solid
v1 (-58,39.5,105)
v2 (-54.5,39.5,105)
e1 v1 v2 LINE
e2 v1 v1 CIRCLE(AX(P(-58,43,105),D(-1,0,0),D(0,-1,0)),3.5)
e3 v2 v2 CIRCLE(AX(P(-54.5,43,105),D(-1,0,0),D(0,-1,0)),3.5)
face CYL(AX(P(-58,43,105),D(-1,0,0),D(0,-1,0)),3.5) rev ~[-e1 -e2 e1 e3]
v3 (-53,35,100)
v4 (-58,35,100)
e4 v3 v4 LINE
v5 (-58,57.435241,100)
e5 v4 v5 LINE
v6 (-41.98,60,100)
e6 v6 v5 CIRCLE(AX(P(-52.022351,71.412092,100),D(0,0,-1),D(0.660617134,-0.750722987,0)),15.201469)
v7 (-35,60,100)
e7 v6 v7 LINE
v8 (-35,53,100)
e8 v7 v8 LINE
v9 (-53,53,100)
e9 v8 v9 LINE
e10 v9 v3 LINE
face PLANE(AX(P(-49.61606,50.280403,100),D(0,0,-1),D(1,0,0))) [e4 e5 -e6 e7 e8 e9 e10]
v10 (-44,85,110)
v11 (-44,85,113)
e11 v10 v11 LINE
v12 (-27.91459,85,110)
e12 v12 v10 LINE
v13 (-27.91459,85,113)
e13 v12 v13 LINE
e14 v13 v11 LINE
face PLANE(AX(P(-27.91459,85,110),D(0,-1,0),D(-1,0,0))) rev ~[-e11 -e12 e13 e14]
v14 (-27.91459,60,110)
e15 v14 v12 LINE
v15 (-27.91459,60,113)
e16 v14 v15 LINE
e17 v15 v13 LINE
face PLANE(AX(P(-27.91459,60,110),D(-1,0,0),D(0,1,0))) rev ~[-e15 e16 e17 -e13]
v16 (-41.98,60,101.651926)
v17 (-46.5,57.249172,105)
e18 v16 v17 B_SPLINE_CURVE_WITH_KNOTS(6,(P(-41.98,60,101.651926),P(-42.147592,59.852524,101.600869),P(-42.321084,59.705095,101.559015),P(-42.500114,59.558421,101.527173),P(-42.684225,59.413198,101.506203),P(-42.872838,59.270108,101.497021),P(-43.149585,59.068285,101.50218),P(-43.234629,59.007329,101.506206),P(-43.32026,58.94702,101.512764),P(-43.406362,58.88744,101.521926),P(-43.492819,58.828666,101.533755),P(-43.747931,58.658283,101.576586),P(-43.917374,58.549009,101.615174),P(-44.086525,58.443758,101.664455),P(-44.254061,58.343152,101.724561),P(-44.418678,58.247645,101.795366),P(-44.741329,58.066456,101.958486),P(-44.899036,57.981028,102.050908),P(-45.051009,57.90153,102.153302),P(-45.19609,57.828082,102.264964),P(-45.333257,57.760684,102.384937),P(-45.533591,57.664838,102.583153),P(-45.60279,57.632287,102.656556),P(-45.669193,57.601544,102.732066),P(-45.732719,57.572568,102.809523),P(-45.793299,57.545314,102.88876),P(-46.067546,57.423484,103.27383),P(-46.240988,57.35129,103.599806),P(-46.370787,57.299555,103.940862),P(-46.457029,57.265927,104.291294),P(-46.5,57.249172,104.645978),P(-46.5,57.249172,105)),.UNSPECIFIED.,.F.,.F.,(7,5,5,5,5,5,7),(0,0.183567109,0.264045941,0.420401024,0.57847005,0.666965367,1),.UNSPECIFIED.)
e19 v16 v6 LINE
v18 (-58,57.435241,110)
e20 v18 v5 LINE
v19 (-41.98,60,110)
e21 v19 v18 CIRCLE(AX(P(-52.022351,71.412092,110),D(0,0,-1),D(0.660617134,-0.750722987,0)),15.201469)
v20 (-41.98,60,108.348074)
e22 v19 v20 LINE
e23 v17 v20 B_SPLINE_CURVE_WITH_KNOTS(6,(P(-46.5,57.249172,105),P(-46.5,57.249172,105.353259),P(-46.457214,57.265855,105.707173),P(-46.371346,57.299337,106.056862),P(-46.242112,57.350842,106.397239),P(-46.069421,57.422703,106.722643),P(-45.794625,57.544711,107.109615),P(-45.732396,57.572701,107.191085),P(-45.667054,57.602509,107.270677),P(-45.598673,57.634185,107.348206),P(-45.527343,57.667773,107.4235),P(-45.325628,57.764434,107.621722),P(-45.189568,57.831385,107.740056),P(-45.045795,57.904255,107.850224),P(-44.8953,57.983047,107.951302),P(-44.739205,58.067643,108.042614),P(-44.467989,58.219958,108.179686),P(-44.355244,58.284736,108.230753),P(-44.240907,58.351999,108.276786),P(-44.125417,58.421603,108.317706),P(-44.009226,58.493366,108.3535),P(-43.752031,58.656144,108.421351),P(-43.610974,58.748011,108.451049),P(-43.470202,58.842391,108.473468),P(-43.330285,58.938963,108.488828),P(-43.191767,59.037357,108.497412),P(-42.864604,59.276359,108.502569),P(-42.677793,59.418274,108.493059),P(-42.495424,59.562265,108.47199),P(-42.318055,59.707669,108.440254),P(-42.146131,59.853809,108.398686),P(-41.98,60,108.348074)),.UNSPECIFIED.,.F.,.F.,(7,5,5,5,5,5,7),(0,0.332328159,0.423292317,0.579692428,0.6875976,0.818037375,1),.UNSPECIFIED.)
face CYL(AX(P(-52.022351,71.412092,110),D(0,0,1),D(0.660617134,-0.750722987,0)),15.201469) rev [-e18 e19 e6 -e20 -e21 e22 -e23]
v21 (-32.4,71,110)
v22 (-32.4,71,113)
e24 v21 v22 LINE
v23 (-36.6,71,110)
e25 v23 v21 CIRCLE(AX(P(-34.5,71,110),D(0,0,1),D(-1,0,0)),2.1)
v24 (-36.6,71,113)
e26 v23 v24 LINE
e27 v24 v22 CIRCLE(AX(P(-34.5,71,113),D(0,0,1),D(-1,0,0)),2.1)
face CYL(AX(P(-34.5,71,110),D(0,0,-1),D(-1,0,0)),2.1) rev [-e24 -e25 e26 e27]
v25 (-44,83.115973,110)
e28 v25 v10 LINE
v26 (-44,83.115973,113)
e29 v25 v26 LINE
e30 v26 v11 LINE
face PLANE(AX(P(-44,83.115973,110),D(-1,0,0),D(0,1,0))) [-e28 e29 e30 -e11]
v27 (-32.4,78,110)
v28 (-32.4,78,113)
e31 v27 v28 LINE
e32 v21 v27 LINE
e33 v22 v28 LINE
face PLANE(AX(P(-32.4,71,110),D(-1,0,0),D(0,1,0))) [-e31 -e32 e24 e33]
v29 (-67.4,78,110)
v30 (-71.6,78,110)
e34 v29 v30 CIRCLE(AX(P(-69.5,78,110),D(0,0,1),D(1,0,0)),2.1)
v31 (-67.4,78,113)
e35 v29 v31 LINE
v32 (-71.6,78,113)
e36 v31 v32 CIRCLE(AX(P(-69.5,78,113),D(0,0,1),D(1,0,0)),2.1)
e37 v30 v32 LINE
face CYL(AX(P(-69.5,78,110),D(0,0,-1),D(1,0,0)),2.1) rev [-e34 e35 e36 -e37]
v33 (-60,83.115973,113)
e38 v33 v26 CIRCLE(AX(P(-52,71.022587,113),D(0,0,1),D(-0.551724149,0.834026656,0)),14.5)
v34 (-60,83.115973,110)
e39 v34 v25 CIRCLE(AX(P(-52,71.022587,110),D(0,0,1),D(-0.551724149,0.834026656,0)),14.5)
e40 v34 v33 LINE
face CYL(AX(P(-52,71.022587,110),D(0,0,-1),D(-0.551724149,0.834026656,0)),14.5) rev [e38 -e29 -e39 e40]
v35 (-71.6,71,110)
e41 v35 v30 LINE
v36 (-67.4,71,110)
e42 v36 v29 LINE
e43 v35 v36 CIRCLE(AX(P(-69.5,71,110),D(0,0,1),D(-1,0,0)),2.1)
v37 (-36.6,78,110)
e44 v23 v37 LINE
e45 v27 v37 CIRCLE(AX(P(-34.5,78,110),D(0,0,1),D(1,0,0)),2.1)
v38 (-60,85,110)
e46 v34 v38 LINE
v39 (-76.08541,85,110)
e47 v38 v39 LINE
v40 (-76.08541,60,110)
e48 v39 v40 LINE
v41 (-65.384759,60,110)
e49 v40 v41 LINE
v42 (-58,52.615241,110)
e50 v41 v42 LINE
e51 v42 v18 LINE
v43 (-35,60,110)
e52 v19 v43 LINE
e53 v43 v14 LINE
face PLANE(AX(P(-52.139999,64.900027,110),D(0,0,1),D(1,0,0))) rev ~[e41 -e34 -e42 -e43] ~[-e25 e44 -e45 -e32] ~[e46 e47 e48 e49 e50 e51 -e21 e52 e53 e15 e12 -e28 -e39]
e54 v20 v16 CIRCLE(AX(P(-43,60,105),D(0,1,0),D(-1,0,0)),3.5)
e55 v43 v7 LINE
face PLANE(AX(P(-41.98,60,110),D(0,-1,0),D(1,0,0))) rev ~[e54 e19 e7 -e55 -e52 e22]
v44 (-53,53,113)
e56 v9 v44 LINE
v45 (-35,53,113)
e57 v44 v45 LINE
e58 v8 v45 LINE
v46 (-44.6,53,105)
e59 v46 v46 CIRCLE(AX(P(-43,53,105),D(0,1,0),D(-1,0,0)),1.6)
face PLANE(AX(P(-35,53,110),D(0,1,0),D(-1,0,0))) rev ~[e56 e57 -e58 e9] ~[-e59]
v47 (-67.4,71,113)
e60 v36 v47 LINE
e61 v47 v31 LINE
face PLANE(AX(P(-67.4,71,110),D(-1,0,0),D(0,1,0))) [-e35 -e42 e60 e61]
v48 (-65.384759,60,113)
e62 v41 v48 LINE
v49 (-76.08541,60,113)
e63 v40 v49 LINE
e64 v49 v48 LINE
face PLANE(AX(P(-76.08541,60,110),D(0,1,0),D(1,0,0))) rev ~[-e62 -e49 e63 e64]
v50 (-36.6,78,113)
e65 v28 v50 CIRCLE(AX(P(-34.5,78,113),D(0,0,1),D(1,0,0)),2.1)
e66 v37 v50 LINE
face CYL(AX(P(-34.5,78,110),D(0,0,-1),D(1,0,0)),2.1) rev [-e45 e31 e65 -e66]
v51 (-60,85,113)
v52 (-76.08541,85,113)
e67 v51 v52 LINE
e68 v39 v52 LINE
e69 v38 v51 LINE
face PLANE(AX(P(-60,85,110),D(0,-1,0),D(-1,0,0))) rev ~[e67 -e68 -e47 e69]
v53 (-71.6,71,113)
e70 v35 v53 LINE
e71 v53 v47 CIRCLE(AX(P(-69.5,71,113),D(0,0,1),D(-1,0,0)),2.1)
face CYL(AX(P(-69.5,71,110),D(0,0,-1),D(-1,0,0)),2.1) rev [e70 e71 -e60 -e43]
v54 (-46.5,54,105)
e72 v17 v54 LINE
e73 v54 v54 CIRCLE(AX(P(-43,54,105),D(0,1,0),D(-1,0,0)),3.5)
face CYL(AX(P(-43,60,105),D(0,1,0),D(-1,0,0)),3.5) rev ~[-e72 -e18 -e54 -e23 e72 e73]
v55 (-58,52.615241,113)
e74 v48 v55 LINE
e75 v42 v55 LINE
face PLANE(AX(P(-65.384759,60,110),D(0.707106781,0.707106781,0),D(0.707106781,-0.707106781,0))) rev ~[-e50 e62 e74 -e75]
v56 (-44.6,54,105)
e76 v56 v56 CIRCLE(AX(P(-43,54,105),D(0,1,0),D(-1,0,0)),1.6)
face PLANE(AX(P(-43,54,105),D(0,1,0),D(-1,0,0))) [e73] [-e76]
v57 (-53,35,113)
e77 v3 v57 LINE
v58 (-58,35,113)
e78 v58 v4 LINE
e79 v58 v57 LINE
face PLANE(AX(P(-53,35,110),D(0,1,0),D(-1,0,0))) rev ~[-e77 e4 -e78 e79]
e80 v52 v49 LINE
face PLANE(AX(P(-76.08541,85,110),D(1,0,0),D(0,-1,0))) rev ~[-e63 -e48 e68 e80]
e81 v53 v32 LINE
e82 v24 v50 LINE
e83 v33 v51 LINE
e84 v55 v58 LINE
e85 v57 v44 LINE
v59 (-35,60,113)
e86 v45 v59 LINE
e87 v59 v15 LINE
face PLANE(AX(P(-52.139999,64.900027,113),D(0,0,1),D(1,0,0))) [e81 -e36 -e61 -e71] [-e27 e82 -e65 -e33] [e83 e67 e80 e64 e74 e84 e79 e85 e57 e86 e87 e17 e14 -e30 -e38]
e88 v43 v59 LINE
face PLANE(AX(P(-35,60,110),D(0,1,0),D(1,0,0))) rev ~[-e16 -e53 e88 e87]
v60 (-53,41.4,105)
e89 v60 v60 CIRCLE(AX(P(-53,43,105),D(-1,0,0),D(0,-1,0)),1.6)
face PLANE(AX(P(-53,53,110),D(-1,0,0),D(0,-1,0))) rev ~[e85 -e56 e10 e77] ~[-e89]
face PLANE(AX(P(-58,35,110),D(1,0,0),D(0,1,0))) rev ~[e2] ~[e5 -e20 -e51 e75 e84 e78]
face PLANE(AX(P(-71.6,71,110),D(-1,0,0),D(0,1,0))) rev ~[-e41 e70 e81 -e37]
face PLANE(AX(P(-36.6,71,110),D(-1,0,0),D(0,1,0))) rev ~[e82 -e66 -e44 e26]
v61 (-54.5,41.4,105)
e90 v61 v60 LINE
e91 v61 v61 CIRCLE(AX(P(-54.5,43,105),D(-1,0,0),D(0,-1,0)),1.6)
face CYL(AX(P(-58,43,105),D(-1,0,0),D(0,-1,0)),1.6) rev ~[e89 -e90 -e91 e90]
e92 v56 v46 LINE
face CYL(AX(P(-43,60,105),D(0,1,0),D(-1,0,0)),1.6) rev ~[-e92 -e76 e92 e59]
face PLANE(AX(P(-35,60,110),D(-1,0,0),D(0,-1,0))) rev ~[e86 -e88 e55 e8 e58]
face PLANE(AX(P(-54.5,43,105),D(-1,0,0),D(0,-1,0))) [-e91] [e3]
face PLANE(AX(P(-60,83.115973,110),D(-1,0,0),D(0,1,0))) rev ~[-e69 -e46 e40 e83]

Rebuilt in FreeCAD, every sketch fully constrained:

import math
import FreeCAD as App
import Part
import Sketcher
from FreeCAD import Vector
Q = App.Units.Quantity

doc = App.newDocument("Part")
body = doc.addObject("PartDesign::Body", "Body")

# Sketch on XY plane
sketch1 = body.newObject("Sketcher::SketchObject", "Sketch")
sketch1.AttachmentSupport = (doc.getObject("XY_Plane"), [""])
sketch1.MapMode = "FlatFace"
sketch1.addGeometry(Part.LineSegment(Vector(-53, -7, 0), Vector(-35, -7, 0)), False)
sketch1.addGeometry(Part.LineSegment(Vector(-35, -7, 0), Vector(-35, 0, 0)), False)
sketch1.addGeometry(Part.LineSegment(Vector(-35, 0, 0), Vector(-27.91459, 0, 0)), False)
sketch1.addGeometry(Part.LineSegment(Vector(-27.91459, 0, 0), Vector(-27.91459, 25, 0)), False)
sketch1.addGeometry(Part.LineSegment(Vector(-27.91459, 25, 0), Vector(-44, 25, 0)), False)
sketch1.addGeometry(Part.LineSegment(Vector(-44, 25, 0), Vector(-44, 23.115973, 0)), False)
sketch1.addGeometry(Part.ArcOfCircle(Part.Circle(Vector(-52, 11.022587, 0), Vector(0, 0, 1), 14.5), math.radians(123.485377), math.radians(416.514623)), False)
sketch1.addGeometry(Part.LineSegment(Vector(-60, 23.115973, 0), Vector(-60, 25, 0)), False)
sketch1.addGeometry(Part.LineSegment(Vector(-60, 25, 0), Vector(-76.08541, 25, 0)), False)
sketch1.addGeometry(Part.LineSegment(Vector(-76.08541, 25, 0), Vector(-76.08541, 0, 0)), False)
sketch1.addGeometry(Part.LineSegment(Vector(-76.08541, 0, 0), Vector(-65.384759, 0, 0)), False)
sketch1.addGeometry(Part.LineSegment(Vector(-65.384759, 0, 0), Vector(-58, -7.384759, 0)), False)
sketch1.addGeometry(Part.LineSegment(Vector(-58, -7.384759, 0), Vector(-58, -25, 0)), False)
sketch1.addGeometry(Part.LineSegment(Vector(-58, -25, 0), Vector(-53, -25, 0)), False)
sketch1.addGeometry(Part.LineSegment(Vector(-53, -25, 0), Vector(-53, -7, 0)), False)
sketch1.addGeometry(Part.ArcOfCircle(Part.Circle(Vector(-69.5, 11, 0), Vector(0, 0, 1), 2.1), math.radians(180), math.radians(360)), False)
sketch1.addGeometry(Part.LineSegment(Vector(-71.6, 11, 0), Vector(-71.6, 18, 0)), False)
sketch1.addGeometry(Part.ArcOfCircle(Part.Circle(Vector(-69.5, 18, 0), Vector(0, 0, 1), 2.1), math.radians(0), math.radians(180)), False)
sketch1.addGeometry(Part.LineSegment(Vector(-67.4, 18, 0), Vector(-67.4, 11, 0)), False)
sketch1.addGeometry(Part.ArcOfCircle(Part.Circle(Vector(-34.5, 11, 0), Vector(0, 0, 1), 2.1), math.radians(180), math.radians(360)), False)
sketch1.addGeometry(Part.LineSegment(Vector(-36.6, 11, 0), Vector(-36.6, 18, 0)), False)
sketch1.addGeometry(Part.ArcOfCircle(Part.Circle(Vector(-34.5, 18, 0), Vector(0, 0, 1), 2.1), math.radians(0), math.radians(180)), False)
sketch1.addGeometry(Part.LineSegment(Vector(-32.4, 18, 0), Vector(-32.4, 11, 0)), False)
sketch1.addConstraint(Sketcher.Constraint("Coincident", 0, 2, 1, 1))
sketch1.addConstraint(Sketcher.Constraint("Coincident", 1, 2, 2, 1))
sketch1.addConstraint(Sketcher.Constraint("Coincident", 2, 2, 3, 1))
sketch1.addConstraint(Sketcher.Constraint("Coincident", 3, 2, 4, 1))
sketch1.addConstraint(Sketcher.Constraint("Coincident", 4, 2, 5, 1))
sketch1.addConstraint(Sketcher.Constraint("Coincident", 5, 2, 6, 2))
sketch1.addConstraint(Sketcher.Constraint("Coincident", 6, 1, 7, 1))
sketch1.addConstraint(Sketcher.Constraint("Coincident", 7, 2, 8, 1))
sketch1.addConstraint(Sketcher.Constraint("Coincident", 8, 2, 9, 1))
sketch1.addConstraint(Sketcher.Constraint("Coincident", 9, 2, 10, 1))
sketch1.addConstraint(Sketcher.Constraint("Coincident", 10, 2, 11, 1))
sketch1.addConstraint(Sketcher.Constraint("Coincident", 11, 2, 12, 1))
sketch1.addConstraint(Sketcher.Constraint("Coincident", 12, 2, 13, 1))
sketch1.addConstraint(Sketcher.Constraint("Coincident", 13, 2, 14, 1))
sketch1.addConstraint(Sketcher.Constraint("Coincident", 14, 2, 0, 1))
sketch1.addConstraint(Sketcher.Constraint("Tangent", 15, 1, 16, 1))
sketch1.addConstraint(Sketcher.Constraint("Tangent", 16, 2, 17, 2))
sketch1.addConstraint(Sketcher.Constraint("Tangent", 17, 1, 18, 1))
sketch1.addConstraint(Sketcher.Constraint("Tangent", 18, 2, 15, 2))
sketch1.addConstraint(Sketcher.Constraint("Tangent", 19, 1, 20, 1))
sketch1.addConstraint(Sketcher.Constraint("Tangent", 20, 2, 21, 2))
sketch1.addConstraint(Sketcher.Constraint("Tangent", 21, 1, 22, 1))
sketch1.addConstraint(Sketcher.Constraint("Tangent", 22, 2, 19, 2))
sketch1.addConstraint(Sketcher.Constraint("Horizontal", 0))
sketch1.addConstraint(Sketcher.Constraint("Vertical", 1))
sketch1.addConstraint(Sketcher.Constraint("Horizontal", 2))
sketch1.addConstraint(Sketcher.Constraint("Vertical", 3))
sketch1.addConstraint(Sketcher.Constraint("Horizontal", 4))
sketch1.addConstraint(Sketcher.Constraint("Vertical", 5))
sketch1.addConstraint(Sketcher.Constraint("Vertical", 7))
sketch1.addConstraint(Sketcher.Constraint("Horizontal", 8))
sketch1.addConstraint(Sketcher.Constraint("Vertical", 9))
sketch1.addConstraint(Sketcher.Constraint("Horizontal", 10))
sketch1.addConstraint(Sketcher.Constraint("Vertical", 12))
sketch1.addConstraint(Sketcher.Constraint("Horizontal", 13))
sketch1.addConstraint(Sketcher.Constraint("Vertical", 14))
sketch1.addConstraint(Sketcher.Constraint("Vertical", 16))
sketch1.addConstraint(Sketcher.Constraint("Vertical", 18))
sketch1.addConstraint(Sketcher.Constraint("Vertical", 20))
sketch1.addConstraint(Sketcher.Constraint("Vertical", 22))
sketch1.addConstraint(Sketcher.Constraint("Equal", 17, 19))
sketch1.addConstraint(Sketcher.Constraint("PointOnObject", 1, 2, -1))
sketch1.addConstraint(Sketcher.Constraint("PointOnObject", 9, 2, -1))
sketch1.addConstraint(Sketcher.Constraint("Horizontal", 15, 3, 19, 3))
sketch1.addConstraint(Sketcher.Constraint("Horizontal", 17, 3, 21, 3))
sketch1.addConstraint(Sketcher.Constraint("Horizontal", 5, 2, 6, 1))
sketch1.addConstraint(Sketcher.Constraint("Horizontal", 4, 2, 7, 2))
sketch1.addConstraint(Sketcher.Constraint("Equal", 4, 8))
sketch1.addConstraint(Sketcher.Constraint("Equal", 0, 14))
sketch1.addConstraint(Sketcher.Constraint("Equal", 1, 16))
sketch1.addConstraint(Sketcher.Constraint("Radius", 6, Q("14.5 mm")))
sketch1.addConstraint(Sketcher.Constraint("Radius", 15, Q("2.1 mm")))
sketch1.addConstraint(Sketcher.Constraint("DistanceX", 0, 1, 0, 2, Q("18 mm")))
sketch1.addConstraint(Sketcher.Constraint("DistanceX", 13, 1, 13, 2, Q("5 mm")))
sketch1.addConstraint(Sketcher.Constraint("DistanceY", 1, 1, 1, 2, Q("7 mm")))
sketch1.addConstraint(Sketcher.Constraint("DistanceY", 3, 1, 3, 2, Q("25 mm")))
sketch1.addConstraint(Sketcher.Constraint("Angle", 11, Q("-45 deg")))
sketch1.addConstraint(Sketcher.Constraint("DistanceX", 6, 3, -1, 1, Q("52 mm")))
sketch1.addConstraint(Sketcher.Constraint("DistanceY", -1, 1, 15, 3, Q("11 mm")))
sketch1.addConstraint(Sketcher.Constraint("DistanceX", 0, 2, -1, 1, Q("35 mm")))
sketch1.addConstraint(Sketcher.Constraint("DistanceX", 4, 2, -1, 1, Q("44 mm")))
sketch1.addConstraint(Sketcher.Constraint("DistanceX", 15, 3, 19, 3, Q("35 mm")))
sketch1.addConstraint(Sketcher.Constraint("DistanceX", 15, 3, -1, 1, Q("69.5 mm")))
sketch1.addConstraint(Sketcher.Constraint("DistanceX", 2, 1, 2, 2, Q("7.08541 mm")))
sketch1.addConstraint(Sketcher.Constraint("DistanceX", 10, 1, 10, 2, Q("10.700651 mm")))
sketch1.addConstraint(Sketcher.Constraint("DistanceY", 5, 2, 5, 1, Q("1.884027 mm")))
pad1 = body.newObject("PartDesign::Pad", "Pad")
pad1.Profile = sketch1
pad1.Length = 3

# Sketch on XY plane
sketch2 = body.newObject("Sketcher::SketchObject", "Sketch001")
sketch2.AttachmentSupport = (doc.getObject("XY_Plane"), [""])
sketch2.MapMode = "FlatFace"
sketch2.addGeometry(Part.LineSegment(Vector(-53, -25, 0), Vector(-58, -25, 0)), False)
sketch2.addGeometry(Part.LineSegment(Vector(-58, -25, 0), Vector(-58, -2.564759, 0)), False)
sketch2.addGeometry(Part.ArcOfCircle(Part.Circle(Vector(-52.022351, 11.412092, 0), Vector(0, 0, 1), 15.201469), math.radians(-113.155529), math.radians(-48.653044)), False)
sketch2.addGeometry(Part.LineSegment(Vector(-41.98, 0, 0), Vector(-35, 0, 0)), False)
sketch2.addGeometry(Part.LineSegment(Vector(-35, 0, 0), Vector(-35, -7, 0)), False)
sketch2.addGeometry(Part.LineSegment(Vector(-35, -7, 0), Vector(-53, -7, 0)), False)
sketch2.addGeometry(Part.LineSegment(Vector(-53, -7, 0), Vector(-53, -25, 0)), False)
sketch2.addConstraint(Sketcher.Constraint("Coincident", 0, 2, 1, 1))
sketch2.addConstraint(Sketcher.Constraint("Coincident", 1, 2, 2, 1))
sketch2.addConstraint(Sketcher.Constraint("Coincident", 2, 2, 3, 1))
sketch2.addConstraint(Sketcher.Constraint("Coincident", 3, 2, 4, 1))
sketch2.addConstraint(Sketcher.Constraint("Coincident", 4, 2, 5, 1))
sketch2.addConstraint(Sketcher.Constraint("Coincident", 5, 2, 6, 1))
sketch2.addConstraint(Sketcher.Constraint("Coincident", 6, 2, 0, 1))
sketch2.addConstraint(Sketcher.Constraint("Horizontal", 0))
sketch2.addConstraint(Sketcher.Constraint("Vertical", 1))
sketch2.addConstraint(Sketcher.Constraint("Horizontal", 3))
sketch2.addConstraint(Sketcher.Constraint("Vertical", 4))
sketch2.addConstraint(Sketcher.Constraint("Horizontal", 5))
sketch2.addConstraint(Sketcher.Constraint("Vertical", 6))
sketch2.addConstraint(Sketcher.Constraint("PointOnObject", 2, 2, -1))
sketch2.addConstraint(Sketcher.Constraint("Equal", 5, 6))
sketch2.addConstraint(Sketcher.Constraint("DistanceX", 0, 2, 0, 1, Q("5 mm")))
sketch2.addConstraint(Sketcher.Constraint("DistanceX", 5, 2, 5, 1, Q("18 mm")))
sketch2.addConstraint(Sketcher.Constraint("DistanceY", 4, 2, 4, 1, Q("7 mm")))
sketch2.addConstraint(Sketcher.Constraint("DistanceX", 0, 2, -1, 1, Q("58 mm")))
sketch2.addConstraint(Sketcher.Constraint("DistanceX", 3, 1, 3, 2, Q("6.98 mm")))
sketch2.addConstraint(Sketcher.Constraint("Radius", 2, Q("15.201469 mm")))
sketch2.addConstraint(Sketcher.Constraint("DistanceY", 1, 1, 1, 2, Q("22.435241 mm")))
pad2 = body.newObject("PartDesign::Pad", "Pad001")
pad2.Profile = sketch2
pad2.Length = 10
pad2.Reversed = True

# Sketch on YZ plane
sketch3 = body.newObject("Sketcher::SketchObject", "Sketch002")
sketch3.AttachmentSupport = (doc.getObject("YZ_Plane"), [""])
sketch3.MapMode = "FlatFace"
sketch3.AttachmentOffset = App.Placement(Vector(0, 0, -58), App.Rotation())
sketch3.addGeometry(Part.Circle(Vector(-17, -5, 0), Vector(0, 0, 1), 1.6), False)
sketch3.addConstraint(Sketcher.Constraint("Diameter", 0, Q("3.2 mm")))
sketch3.addConstraint(Sketcher.Constraint("DistanceX", 0, 3, -1, 1, Q("17 mm")))
sketch3.addConstraint(Sketcher.Constraint("DistanceY", 0, 3, -1, 1, Q("5 mm")))
pocket1 = body.newObject("PartDesign::Pocket", "Pocket")
pocket1.Profile = sketch3
pocket1.Length = 5
pocket1.Reversed = True

# Sketch on YZ plane
sketch4 = body.newObject("Sketcher::SketchObject", "Sketch003")
sketch4.AttachmentSupport = (doc.getObject("YZ_Plane"), [""])
sketch4.MapMode = "FlatFace"
sketch4.AttachmentOffset = App.Placement(Vector(0, 0, -58), App.Rotation())
sketch4.addGeometry(Part.Circle(Vector(-17, -5, 0), Vector(0, 0, 1), 3.5), False)
sketch4.addConstraint(Sketcher.Constraint("Diameter", 0, Q("7 mm")))
sketch4.addConstraint(Sketcher.Constraint("DistanceX", 0, 3, -1, 1, Q("17 mm")))
sketch4.addConstraint(Sketcher.Constraint("DistanceY", 0, 3, -1, 1, Q("5 mm")))
pocket2 = body.newObject("PartDesign::Pocket", "Pocket001")
pocket2.Profile = sketch4
pocket2.Length = 3.5
pocket2.Reversed = True

# Sketch on XZ plane
sketch5 = body.newObject("Sketcher::SketchObject", "Sketch004")
sketch5.AttachmentSupport = (doc.getObject("XZ_Plane"), [""])
sketch5.MapMode = "FlatFace"
sketch5.addGeometry(Part.Circle(Vector(-43, -5, 0), Vector(0, 0, 1), 1.6), False)
sketch5.addConstraint(Sketcher.Constraint("Diameter", 0, Q("3.2 mm")))
sketch5.addConstraint(Sketcher.Constraint("DistanceX", 0, 3, -1, 1, Q("43 mm")))
sketch5.addConstraint(Sketcher.Constraint("DistanceY", 0, 3, -1, 1, Q("5 mm")))
pocket3 = body.newObject("PartDesign::Pocket", "Pocket002")
pocket3.Profile = sketch5
pocket3.Length = 10
pocket3.Reversed = True

# Sketch on XZ plane
sketch6 = body.newObject("Sketcher::SketchObject", "Sketch005")
sketch6.AttachmentSupport = (doc.getObject("XZ_Plane"), [""])
sketch6.MapMode = "FlatFace"
sketch6.addGeometry(Part.Circle(Vector(-43, -5, 0), Vector(0, 0, 1), 3.5), False)
sketch6.addConstraint(Sketcher.Constraint("Diameter", 0, Q("7 mm")))
sketch6.addConstraint(Sketcher.Constraint("DistanceX", 0, 3, -1, 1, Q("43 mm")))
sketch6.addConstraint(Sketcher.Constraint("DistanceY", 0, 3, -1, 1, Q("5 mm")))
pocket4 = body.newObject("PartDesign::Pocket", "Pocket003")
pocket4.Profile = sketch6
pocket4.Length = 6
pocket4.Reversed = True
body2 = doc.addObject("PartDesign::Body", "Body001")
doc.recompute()

body.Placement = App.Placement(Vector(0, 60, 110), App.Rotation(Vector(0, 0, 1), 0))
boolean = body2.newObject("PartDesign::Boolean", "Boolean")
boolean.Type = "Fuse"
boolean.addObjects([body])

doc.recompute()
